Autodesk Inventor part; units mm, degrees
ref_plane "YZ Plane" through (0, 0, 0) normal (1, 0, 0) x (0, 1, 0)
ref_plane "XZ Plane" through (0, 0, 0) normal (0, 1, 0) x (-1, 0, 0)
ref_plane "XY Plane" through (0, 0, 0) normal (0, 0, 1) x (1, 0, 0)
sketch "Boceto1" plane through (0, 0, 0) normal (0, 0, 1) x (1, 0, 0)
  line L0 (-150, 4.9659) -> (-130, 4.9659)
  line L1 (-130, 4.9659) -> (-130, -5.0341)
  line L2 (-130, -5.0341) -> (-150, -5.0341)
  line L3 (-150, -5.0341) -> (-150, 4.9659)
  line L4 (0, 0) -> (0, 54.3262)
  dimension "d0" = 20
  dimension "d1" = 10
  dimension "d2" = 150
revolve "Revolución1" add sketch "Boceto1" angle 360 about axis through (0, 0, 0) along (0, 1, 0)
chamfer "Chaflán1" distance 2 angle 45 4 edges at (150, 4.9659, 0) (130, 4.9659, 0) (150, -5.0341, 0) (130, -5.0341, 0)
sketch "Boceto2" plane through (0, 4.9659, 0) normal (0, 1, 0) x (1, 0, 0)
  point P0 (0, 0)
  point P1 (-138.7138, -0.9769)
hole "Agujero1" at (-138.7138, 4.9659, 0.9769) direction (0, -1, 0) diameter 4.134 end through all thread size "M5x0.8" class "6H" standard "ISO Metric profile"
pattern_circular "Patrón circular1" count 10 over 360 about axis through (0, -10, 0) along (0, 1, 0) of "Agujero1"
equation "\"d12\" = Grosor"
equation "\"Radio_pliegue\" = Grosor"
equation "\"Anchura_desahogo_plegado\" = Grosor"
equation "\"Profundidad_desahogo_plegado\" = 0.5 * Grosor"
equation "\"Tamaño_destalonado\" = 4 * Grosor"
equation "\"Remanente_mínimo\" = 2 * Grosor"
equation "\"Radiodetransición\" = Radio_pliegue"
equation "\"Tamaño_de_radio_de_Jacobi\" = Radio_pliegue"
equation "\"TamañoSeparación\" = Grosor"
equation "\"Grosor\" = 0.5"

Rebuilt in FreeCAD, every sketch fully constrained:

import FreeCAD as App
import Part
import Sketcher

V = App.Vector


def edges_at(feature, points):
    """Names of the edges that pass closest to the given points."""
    edges = feature.Shape.Edges
    near = lambda p: min(range(len(edges)), key=lambda i: edges[i].distToShape(Part.Vertex(*p))[0])
    return sorted({f"Edge{near(p) + 1}" for p in points})

doc = App.newDocument("Part")
body = doc.addObject("PartDesign::Body", "Body")

# Sketch on XY plane
sketch1 = doc.addObject("Sketcher::SketchObject", "Sketch")
body.addObject(sketch1)
sketch1.AttachmentSupport = (doc.XY_Plane, [""])
sketch1.MapMode = "FlatFace"
sketch1.addGeometry(Part.LineSegment(V(-130, 5, 0), V(-150, 5, 0)), False)
sketch1.addGeometry(Part.LineSegment(V(-150, 5, 0), V(-150, -5, 0)), False)
sketch1.addGeometry(Part.LineSegment(V(-150, -5, 0), V(-130, -5, 0)), False)
sketch1.addGeometry(Part.LineSegment(V(-130, -5, 0), V(-130, 5, 0)), False)
sketch1.addConstraint(Sketcher.Constraint("Coincident", 0, 2, 1, 1))
sketch1.addConstraint(Sketcher.Constraint("Coincident", 1, 2, 2, 1))
sketch1.addConstraint(Sketcher.Constraint("Coincident", 2, 2, 3, 1))
sketch1.addConstraint(Sketcher.Constraint("Coincident", 3, 2, 0, 1))
sketch1.addConstraint(Sketcher.Constraint("Horizontal", 0))
sketch1.addConstraint(Sketcher.Constraint("Vertical", 1))
sketch1.addConstraint(Sketcher.Constraint("Horizontal", 2))
sketch1.addConstraint(Sketcher.Constraint("Vertical", 3))
sketch1.addConstraint(Sketcher.Constraint("DistanceX", 0, 2, 0, 1, 20.0))
sketch1.addConstraint(Sketcher.Constraint("DistanceY", 1, 2, 1, 1, 10.0))
sketch1.addConstraint(Sketcher.Constraint("DistanceX", 0, 2, -1, 1, 150.0))
sketch1.addConstraint(Sketcher.Constraint("DistanceY", -1, 1, 0, 2, 4.966))
revolution = doc.addObject("PartDesign::Revolution", "Revolution")
body.addObject(revolution)
revolution.Profile = sketch1
revolution.ReferenceAxis = (sketch1, ["V_Axis"])
revolution.Angle = 360
doc.recompute()

chamfer = doc.addObject("PartDesign::Chamfer", "Chamfer")
body.addObject(chamfer)
chamfer.Base = (revolution, edges_at(revolution, [
    (150, 4.966, 0),
    (130, 4.966, 0),
    (150, -5.034, 0),
    (130, -5.034, 0),
]))
chamfer.Size = 2

# Sketch on XZ plane
sketch2 = doc.addObject("Sketcher::SketchObject", "Sketch001")
body.addObject(sketch2)
sketch2.AttachmentSupport = (doc.XZ_Plane, [""])
sketch2.MapMode = "FlatFace"
sketch2.AttachmentOffset = App.Placement(V(0, 0, -4.9659), App.Rotation())
sketch2.addGeometry(Part.Circle(V(-138.7, 1, 0), V(0, 0, 1), 2.1), False)
sketch2.addConstraint(Sketcher.Constraint("Diameter", 0, 4.134))
sketch2.addConstraint(Sketcher.Constraint("DistanceY", -1, 1, 0, 3, 0.977))
sketch2.addConstraint(Sketcher.Constraint("DistanceX", 0, 3, -1, 1, 138.7138))
doc.recompute()
hole = doc.addObject("PartDesign::Hole", "Hole")
body.addObject(hole)
hole.Profile = sketch2
hole.ThreadType = "None"
hole.Diameter = 4.134
hole.DepthType = "ThroughAll"
hole.Reversed = True
doc.recompute()

polarpattern = doc.addObject("PartDesign::PolarPattern", "PolarPattern")
body.addObject(polarpattern)
polarpattern.Originals = [hole]
polarpattern.Axis = (doc.Y_Axis, [""])
polarpattern.Angle = 360
polarpattern.Occurrences = 10
body.Tip = polarpattern

doc.recompute()
